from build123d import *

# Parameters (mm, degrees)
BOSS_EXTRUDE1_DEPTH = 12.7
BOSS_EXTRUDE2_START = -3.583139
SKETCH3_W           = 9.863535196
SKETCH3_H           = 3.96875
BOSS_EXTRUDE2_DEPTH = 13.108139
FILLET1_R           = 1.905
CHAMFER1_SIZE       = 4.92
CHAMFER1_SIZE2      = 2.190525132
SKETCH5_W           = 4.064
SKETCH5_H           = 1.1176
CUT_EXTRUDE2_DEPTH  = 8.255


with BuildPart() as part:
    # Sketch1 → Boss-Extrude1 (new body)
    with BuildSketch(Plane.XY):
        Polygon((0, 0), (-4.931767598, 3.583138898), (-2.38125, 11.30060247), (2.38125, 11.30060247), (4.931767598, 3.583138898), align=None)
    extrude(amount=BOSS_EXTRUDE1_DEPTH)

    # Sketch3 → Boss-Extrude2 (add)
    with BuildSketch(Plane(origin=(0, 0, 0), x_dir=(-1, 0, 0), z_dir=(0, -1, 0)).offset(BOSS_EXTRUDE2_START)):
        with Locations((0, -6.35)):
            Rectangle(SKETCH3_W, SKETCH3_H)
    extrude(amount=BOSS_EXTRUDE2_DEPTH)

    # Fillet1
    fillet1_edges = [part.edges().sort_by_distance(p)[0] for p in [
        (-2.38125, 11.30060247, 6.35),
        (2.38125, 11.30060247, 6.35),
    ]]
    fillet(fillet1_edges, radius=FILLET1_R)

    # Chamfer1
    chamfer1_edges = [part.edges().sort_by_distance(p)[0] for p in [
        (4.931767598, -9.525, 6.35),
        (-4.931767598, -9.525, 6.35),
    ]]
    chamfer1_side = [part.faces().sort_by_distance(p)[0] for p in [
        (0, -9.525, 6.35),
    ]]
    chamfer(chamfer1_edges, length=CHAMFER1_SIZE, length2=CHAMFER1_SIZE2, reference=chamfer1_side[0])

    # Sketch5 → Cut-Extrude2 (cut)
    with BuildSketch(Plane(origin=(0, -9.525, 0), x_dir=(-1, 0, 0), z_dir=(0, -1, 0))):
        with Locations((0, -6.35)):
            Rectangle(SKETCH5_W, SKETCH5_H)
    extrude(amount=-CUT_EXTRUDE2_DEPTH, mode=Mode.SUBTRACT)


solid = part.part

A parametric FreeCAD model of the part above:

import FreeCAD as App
import Part
import Sketcher
Q = App.Units.Quantity


def edges_at(feature, points):
    """Names of the edges that pass closest to the given points."""
    edges = feature.Shape.Edges
    near = lambda p: min(range(len(edges)), key=lambda i: edges[i].distToShape(Part.Vertex(*p))[0])
    return sorted({f"Edge{near(p) + 1}" for p in points})


def add_polygon(sketch, points):
    """Adds a closed chain of lines whose ends are joined by coincident constraints."""
    first, n = sketch.GeometryCount, len(points)
    for a, b in zip(points, points[1:] + points[:1]):
        sketch.addGeometry(Part.LineSegment(App.Vector(*a, 0), App.Vector(*b, 0)), False)
    for i in range(n):
        sketch.addConstraint(Sketcher.Constraint("Coincident", first + i, 2, first + (i + 1) % n, 1))

doc = App.newDocument("Part")
params = doc.addObject("Spreadsheet::Sheet", "Params")
for row, (alias, value) in enumerate([
    ("sketch1_length", "0.24 in"),
    ("sketch1_length2", "0.32 in"),
    ("sketch1_width", "0.1875 in"),
    ("pad1_length", "0.5 in"),
    ("sketch2_height", "0.15625 in"),
    ("pad2_length", "13.108139 mm"),
    ("fillet_radius", "0.075 in"),
    ("chamfer_size", "4.92 mm"),
    ("chamfer_size2", "2.190525 mm"),
    ("sketch3_width", "0.16 in"),
    ("sketch3_height", "0.044 in"),
    ("pocket1_length", "0.325 in"),
], start=1):
    params.set(f"A{row}", alias)
    params.set(f"B{row}", "=" + value)
    params.setAlias(f"B{row}", alias)

body = doc.addObject("PartDesign::Body", "Body")

# Sketch on XY plane
sketch1 = doc.addObject("Sketcher::SketchObject", "Sketch")
body.addObject(sketch1)
sketch1.AttachmentSupport = (doc.XY_Plane, [""])
sketch1.MapMode = "FlatFace"
add_polygon(sketch1, [(-4.9, 3.6), (0, 0), (4.9, 3.6), (2.4, 11.3), (-2.4, 11.3)])  # lines 0-4
sketch1.addConstraint(Sketcher.Constraint("Horizontal", 3))
sketch1.addConstraint(Sketcher.Constraint("Coincident", 0, 2, -1, 1))
sketch1.addConstraint(Sketcher.Constraint("Symmetric", 1, 2, 4, 2, -2))
sketch1.addConstraint(Sketcher.Constraint("Equal", 2, 4))
sketch1.addConstraint(Sketcher.Constraint("Angle", 0, Q("-36 deg")))
sketch1.addConstraint(Sketcher.Constraint("Distance", 0, Q("0.24 in")))
sketch1.addConstraint(Sketcher.Constraint("Distance", 2, Q("0.32 in")))
sketch1.addConstraint(Sketcher.Constraint("DistanceX", 3, 2, 3, 1, Q("0.1875 in")))
sketch1.setExpression("Constraints[10]", "Params.sketch1_length")
sketch1.setExpression("Constraints[11]", "Params.sketch1_length2")
sketch1.setExpression("Constraints[12]", "Params.sketch1_width")
pad1 = doc.addObject("PartDesign::Pad", "Pad")
body.addObject(pad1)
pad1.Profile = sketch1
pad1.setExpression("Length", "Params.pad1_length")

# Sketch on XZ plane
sketch2 = doc.addObject("Sketcher::SketchObject", "Sketch001")
body.addObject(sketch2)
sketch2.AttachmentSupport = (doc.XZ_Plane, [""])
sketch2.MapMode = "FlatFace"
sketch2.AttachmentOffset = App.Placement(App.Vector(0, 0, -3.583139), App.Rotation())
add_polygon(sketch2, [(4.9, 4.4), (4.9, 8.3), (-4.9, 8.3), (-4.9, 4.4)])  # lines 0-3
sketch2.addConstraint(Sketcher.Constraint("Vertical", 0))
sketch2.addConstraint(Sketcher.Constraint("Horizontal", 1))
sketch2.addConstraint(Sketcher.Constraint("Vertical", 2))
sketch2.addConstraint(Sketcher.Constraint("Horizontal", 3))
sketch2.addConstraint(Sketcher.Constraint("DistanceY", 0, 1, 0, 2, Q("0.15625 in")))
sketch2.addConstraint(Sketcher.Constraint("DistanceY", -1, 1, 0, 2, Q("0.328125 in")))
sketch2.addConstraint(Sketcher.Constraint("DistanceX", 1, 2, 1, 1, Q("9.863535 mm")))
sketch2.addConstraint(Sketcher.Constraint("DistanceX", -1, 1, 0, 2, Q("4.931768 mm")))
sketch2.setExpression("Constraints[8]", "Params.sketch2_height")
pad2 = doc.addObject("PartDesign::Pad", "Pad001")
body.addObject(pad2)
pad2.Profile = sketch2
pad2.setExpression("Length", "Params.pad2_length")
doc.recompute()

fillet = doc.addObject("PartDesign::Fillet", "Fillet")
body.addObject(fillet)
fillet.Base = (pad2, edges_at(pad2, [(-2.381, 11.301, 6.35), (2.381, 11.301, 6.35)]))
fillet.setExpression("Radius", "Params.fillet_radius")
doc.recompute()

chamfer = doc.addObject("PartDesign::Chamfer", "Chamfer")
body.addObject(chamfer)
chamfer.Base = (fillet, edges_at(fillet, [(4.932, -9.525, 6.35), (-4.932, -9.525, 6.35)]))
chamfer.ChamferType = "Two distances"
chamfer.setExpression("Size", "Params.chamfer_size")
chamfer.setExpression("Size2", "Params.chamfer_size2")
chamfer.FlipDirection = True

# Sketch on XZ plane
sketch3 = doc.addObject("Sketcher::SketchObject", "Sketch002")
body.addObject(sketch3)
sketch3.AttachmentSupport = (doc.XZ_Plane, [""])
sketch3.MapMode = "FlatFace"
sketch3.AttachmentOffset = App.Placement(App.Vector(0, 0, 0.375 * 25.4), App.Rotation())
add_polygon(sketch3, [(2, 5.8), (2, 6.9), (-2, 6.9), (-2, 5.8)])  # lines 0-3
sketch3.addConstraint(Sketcher.Constraint("Vertical", 0))
sketch3.addConstraint(Sketcher.Constraint("Horizontal", 1))
sketch3.addConstraint(Sketcher.Constraint("Vertical", 2))
sketch3.addConstraint(Sketcher.Constraint("Horizontal", 3))
sketch3.addConstraint(Sketcher.Constraint("DistanceX", 1, 2, 1, 1, Q("0.16 in")))
sketch3.addConstraint(Sketcher.Constraint("DistanceY", 0, 1, 0, 2, Q("0.044 in")))
sketch3.addConstraint(Sketcher.Constraint("DistanceX", -1, 1, 0, 2, Q("0.08 in")))
sketch3.addConstraint(Sketcher.Constraint("DistanceY", -1, 1, 0, 2, Q("0.272 in")))
sketch3.setExpression("Constraints[8]", "Params.sketch3_width")
sketch3.setExpression("Constraints[9]", "Params.sketch3_height")
pocket1 = doc.addObject("PartDesign::Pocket", "Pocket")
body.addObject(pocket1)
pocket1.Profile = sketch3
pocket1.setExpression("Length", "Params.pocket1_length")

doc.recompute()
